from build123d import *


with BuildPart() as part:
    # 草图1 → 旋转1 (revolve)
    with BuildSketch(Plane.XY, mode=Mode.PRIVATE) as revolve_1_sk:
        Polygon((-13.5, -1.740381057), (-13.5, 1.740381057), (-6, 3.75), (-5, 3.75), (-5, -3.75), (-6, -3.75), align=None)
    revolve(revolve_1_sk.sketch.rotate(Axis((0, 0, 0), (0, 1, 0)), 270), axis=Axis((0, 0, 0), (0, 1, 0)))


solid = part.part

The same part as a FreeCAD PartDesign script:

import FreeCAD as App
import Part
import Sketcher

V = App.Vector
Q = App.Units.Quantity

doc = App.newDocument("Part")
params = doc.addObject("Spreadsheet::Sheet", "Params")
for row, (alias, value) in enumerate([
    ("sketch1_width", "1 mm"),
    ("sketch1_height", "7.5 mm"),
    ("revolution_angle", "360 deg"),
], start=1):
    params.set(f"A{row}", alias)
    params.set(f"B{row}", "=" + value)
    params.setAlias(f"B{row}", alias)

body = doc.addObject("PartDesign::Body", "Body")

# Sketch on XY plane
sketch1 = doc.addObject("Sketcher::SketchObject", "Sketch")
body.addObject(sketch1)
sketch1.AttachmentSupport = (doc.XY_Plane, [""])
sketch1.MapMode = "FlatFace"
sketch1.addGeometry([
    Part.LineSegment(V(-13.5, 1.740381, 0), V(-13.5, -1.740381, 0)),  # 0
    Part.LineSegment(V(-13.5, -1.740381, 0), V(-6, -3.75, 0)),  # 1
    Part.LineSegment(V(-6, -3.75, 0), V(-5, -3.75, 0)),  # 2
    Part.LineSegment(V(-5, -3.75, 0), V(-5, 3.75, 0)),  # 3
    Part.LineSegment(V(-5, 3.75, 0), V(-6, 3.75, 0)),  # 4
    Part.LineSegment(V(-6, 3.75, 0), V(-13.5, 1.740381, 0)),  # 5
], False)
sketch1.addConstraint([
    Sketcher.Constraint("Coincident", 0, 2, 1, 1),
    Sketcher.Constraint("Coincident", 1, 2, 2, 1),
    Sketcher.Constraint("Coincident", 2, 2, 3, 1),
    Sketcher.Constraint("Coincident", 3, 2, 4, 1),
    Sketcher.Constraint("Coincident", 4, 2, 5, 1),
    Sketcher.Constraint("Coincident", 5, 2, 0, 1),
    Sketcher.Constraint("Vertical", 0),
    Sketcher.Constraint("Horizontal", 2),
    Sketcher.Constraint("Vertical", 3),
    Sketcher.Constraint("Horizontal", 4),
    Sketcher.Constraint("Symmetric", 1, 2, 4, 2, -1),
    Sketcher.Constraint("Equal", 1, 5),
    Sketcher.Constraint("DistanceX", 2, 1, 2, 2, Q("1 mm")),
    Sketcher.Constraint("Angle", 1, Q("-15 deg")),
    Sketcher.Constraint("DistanceY", 3, 1, 3, 2, Q("7.5 mm")),
    Sketcher.Constraint("DistanceX", 1, 2, -1, 1, Q("6 mm")),
    Sketcher.Constraint("DistanceX", 0, 2, -1, 1, Q("13.5 mm")),
])
sketch1.setExpression("Constraints[12]", "Params.sketch1_width")
sketch1.setExpression("Constraints[14]", "Params.sketch1_height")
revolution = doc.addObject("PartDesign::Revolution", "Revolution")
body.addObject(revolution)
revolution.Profile = sketch1
revolution.ReferenceAxis = (sketch1, ["V_Axis"])
revolution.setExpression("Angle", "Params.revolution_angle")

doc.recompute()
